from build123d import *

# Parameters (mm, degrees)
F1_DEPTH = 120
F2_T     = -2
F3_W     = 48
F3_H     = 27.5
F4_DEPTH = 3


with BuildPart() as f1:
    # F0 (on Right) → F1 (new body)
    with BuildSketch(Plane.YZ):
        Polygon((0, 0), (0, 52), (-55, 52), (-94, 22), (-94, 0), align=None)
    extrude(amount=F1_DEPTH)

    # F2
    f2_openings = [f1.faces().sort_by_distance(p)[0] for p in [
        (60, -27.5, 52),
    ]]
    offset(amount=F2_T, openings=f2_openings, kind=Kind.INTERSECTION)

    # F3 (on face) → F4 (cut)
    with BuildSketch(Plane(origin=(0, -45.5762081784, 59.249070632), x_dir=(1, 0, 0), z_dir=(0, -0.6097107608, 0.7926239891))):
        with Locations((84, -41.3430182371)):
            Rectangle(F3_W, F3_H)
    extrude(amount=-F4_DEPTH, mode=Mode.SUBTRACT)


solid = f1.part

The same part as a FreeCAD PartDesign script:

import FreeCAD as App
import Part
import Sketcher
from FreeCAD import Vector


def faces_at(feature, points):
    """Names of the faces that lie closest to the given points."""
    faces = feature.Shape.Faces
    near = lambda p: min(range(len(faces)), key=lambda i: faces[i].distToShape(Part.Vertex(*p))[0])
    return sorted({f"Face{near(p) + 1}" for p in points})

doc = App.newDocument("Part")
body = doc.addObject("PartDesign::Body", "Body")

# Sketch on YZ plane
sketch1 = body.newObject("Sketcher::SketchObject", "Sketch")
sketch1.AttachmentSupport = (doc.getObject("YZ_Plane"), [""])
sketch1.MapMode = "FlatFace"
sketch1.addGeometry(Part.LineSegment(Vector(0, 0, 0), Vector(0, 52, 0)), False)
sketch1.addGeometry(Part.LineSegment(Vector(0, 52, 0), Vector(-55, 52, 0)), False)
sketch1.addGeometry(Part.LineSegment(Vector(-55, 52, 0), Vector(-94, 22, 0)), False)
sketch1.addGeometry(Part.LineSegment(Vector(-94, 22, 0), Vector(-94, 0, 0)), False)
sketch1.addGeometry(Part.LineSegment(Vector(-94, 0, 0), Vector(0, 0, 0)), False)
sketch1.addConstraint(Sketcher.Constraint("Coincident", 0, 2, 1, 1))
sketch1.addConstraint(Sketcher.Constraint("Coincident", 1, 2, 2, 1))
sketch1.addConstraint(Sketcher.Constraint("Coincident", 2, 2, 3, 1))
sketch1.addConstraint(Sketcher.Constraint("Coincident", 3, 2, 4, 1))
sketch1.addConstraint(Sketcher.Constraint("Coincident", 4, 2, 0, 1))
sketch1.addConstraint(Sketcher.Constraint("Vertical", 0))
sketch1.addConstraint(Sketcher.Constraint("Horizontal", 1))
sketch1.addConstraint(Sketcher.Constraint("Vertical", 3))
sketch1.addConstraint(Sketcher.Constraint("Horizontal", 4))
sketch1.addConstraint(Sketcher.Constraint("Coincident", 4, 2, -1, 1))
sketch1.addConstraint(Sketcher.Constraint("DistanceX", 1, 2, 1, 1, 55.0))
sketch1.addConstraint(Sketcher.Constraint("DistanceX", 4, 1, 4, 2, 94.0))
sketch1.addConstraint(Sketcher.Constraint("DistanceY", 0, 1, 0, 2, 52.0))
sketch1.addConstraint(Sketcher.Constraint("DistanceY", 3, 2, 3, 1, 22.0))
pad1 = body.newObject("PartDesign::Pad", "Pad")
pad1.Profile = sketch1
pad1.Length = 120
doc.recompute()

thickness = body.newObject("PartDesign::Thickness", "Thickness")
thickness.Base = (pad1, faces_at(pad1, [(60, -27.5, 52)]))
thickness.Value = 2
thickness.Reversed = True
thickness.Join = "Intersection"

# Sketch on an angled plane
sketch2 = body.newObject("Sketcher::SketchObject", "Sketch001")
sketch2.Placement = App.Placement(Vector(0, -45.576208, 59.249071), App.Rotation(Vector(1, 0, 0), Vector(0, 0.792623989, 0.609710761), Vector(0, -0.609710761, 0.792623989), "ZXY"))
sketch2.addGeometry(Part.LineSegment(Vector(60, -28, 0), Vector(60, -55, 0)), False)
sketch2.addGeometry(Part.LineSegment(Vector(60, -55, 0), Vector(108, -55, 0)), False)
sketch2.addGeometry(Part.LineSegment(Vector(108, -55, 0), Vector(108, -28, 0)), False)
sketch2.addGeometry(Part.LineSegment(Vector(108, -28, 0), Vector(60, -28, 0)), False)
sketch2.addConstraint(Sketcher.Constraint("Coincident", 0, 2, 1, 1))
sketch2.addConstraint(Sketcher.Constraint("Coincident", 1, 2, 2, 1))
sketch2.addConstraint(Sketcher.Constraint("Coincident", 2, 2, 3, 1))
sketch2.addConstraint(Sketcher.Constraint("Coincident", 3, 2, 0, 1))
sketch2.addConstraint(Sketcher.Constraint("Vertical", 0))
sketch2.addConstraint(Sketcher.Constraint("Horizontal", 1))
sketch2.addConstraint(Sketcher.Constraint("Vertical", 2))
sketch2.addConstraint(Sketcher.Constraint("Horizontal", 3))
sketch2.addConstraint(Sketcher.Constraint("DistanceX", 1, 1, 1, 2, 48.0))
sketch2.addConstraint(Sketcher.Constraint("DistanceY", 0, 2, 0, 1, 27.5))
sketch2.addConstraint(Sketcher.Constraint("DistanceX", -1, 1, 0, 2, 60.0))
sketch2.addConstraint(Sketcher.Constraint("DistanceY", 0, 2, -1, 1, 55.093018))
pocket1 = body.newObject("PartDesign::Pocket", "Pocket")
pocket1.Profile = sketch2
pocket1.Length = 3

doc.recompute()
